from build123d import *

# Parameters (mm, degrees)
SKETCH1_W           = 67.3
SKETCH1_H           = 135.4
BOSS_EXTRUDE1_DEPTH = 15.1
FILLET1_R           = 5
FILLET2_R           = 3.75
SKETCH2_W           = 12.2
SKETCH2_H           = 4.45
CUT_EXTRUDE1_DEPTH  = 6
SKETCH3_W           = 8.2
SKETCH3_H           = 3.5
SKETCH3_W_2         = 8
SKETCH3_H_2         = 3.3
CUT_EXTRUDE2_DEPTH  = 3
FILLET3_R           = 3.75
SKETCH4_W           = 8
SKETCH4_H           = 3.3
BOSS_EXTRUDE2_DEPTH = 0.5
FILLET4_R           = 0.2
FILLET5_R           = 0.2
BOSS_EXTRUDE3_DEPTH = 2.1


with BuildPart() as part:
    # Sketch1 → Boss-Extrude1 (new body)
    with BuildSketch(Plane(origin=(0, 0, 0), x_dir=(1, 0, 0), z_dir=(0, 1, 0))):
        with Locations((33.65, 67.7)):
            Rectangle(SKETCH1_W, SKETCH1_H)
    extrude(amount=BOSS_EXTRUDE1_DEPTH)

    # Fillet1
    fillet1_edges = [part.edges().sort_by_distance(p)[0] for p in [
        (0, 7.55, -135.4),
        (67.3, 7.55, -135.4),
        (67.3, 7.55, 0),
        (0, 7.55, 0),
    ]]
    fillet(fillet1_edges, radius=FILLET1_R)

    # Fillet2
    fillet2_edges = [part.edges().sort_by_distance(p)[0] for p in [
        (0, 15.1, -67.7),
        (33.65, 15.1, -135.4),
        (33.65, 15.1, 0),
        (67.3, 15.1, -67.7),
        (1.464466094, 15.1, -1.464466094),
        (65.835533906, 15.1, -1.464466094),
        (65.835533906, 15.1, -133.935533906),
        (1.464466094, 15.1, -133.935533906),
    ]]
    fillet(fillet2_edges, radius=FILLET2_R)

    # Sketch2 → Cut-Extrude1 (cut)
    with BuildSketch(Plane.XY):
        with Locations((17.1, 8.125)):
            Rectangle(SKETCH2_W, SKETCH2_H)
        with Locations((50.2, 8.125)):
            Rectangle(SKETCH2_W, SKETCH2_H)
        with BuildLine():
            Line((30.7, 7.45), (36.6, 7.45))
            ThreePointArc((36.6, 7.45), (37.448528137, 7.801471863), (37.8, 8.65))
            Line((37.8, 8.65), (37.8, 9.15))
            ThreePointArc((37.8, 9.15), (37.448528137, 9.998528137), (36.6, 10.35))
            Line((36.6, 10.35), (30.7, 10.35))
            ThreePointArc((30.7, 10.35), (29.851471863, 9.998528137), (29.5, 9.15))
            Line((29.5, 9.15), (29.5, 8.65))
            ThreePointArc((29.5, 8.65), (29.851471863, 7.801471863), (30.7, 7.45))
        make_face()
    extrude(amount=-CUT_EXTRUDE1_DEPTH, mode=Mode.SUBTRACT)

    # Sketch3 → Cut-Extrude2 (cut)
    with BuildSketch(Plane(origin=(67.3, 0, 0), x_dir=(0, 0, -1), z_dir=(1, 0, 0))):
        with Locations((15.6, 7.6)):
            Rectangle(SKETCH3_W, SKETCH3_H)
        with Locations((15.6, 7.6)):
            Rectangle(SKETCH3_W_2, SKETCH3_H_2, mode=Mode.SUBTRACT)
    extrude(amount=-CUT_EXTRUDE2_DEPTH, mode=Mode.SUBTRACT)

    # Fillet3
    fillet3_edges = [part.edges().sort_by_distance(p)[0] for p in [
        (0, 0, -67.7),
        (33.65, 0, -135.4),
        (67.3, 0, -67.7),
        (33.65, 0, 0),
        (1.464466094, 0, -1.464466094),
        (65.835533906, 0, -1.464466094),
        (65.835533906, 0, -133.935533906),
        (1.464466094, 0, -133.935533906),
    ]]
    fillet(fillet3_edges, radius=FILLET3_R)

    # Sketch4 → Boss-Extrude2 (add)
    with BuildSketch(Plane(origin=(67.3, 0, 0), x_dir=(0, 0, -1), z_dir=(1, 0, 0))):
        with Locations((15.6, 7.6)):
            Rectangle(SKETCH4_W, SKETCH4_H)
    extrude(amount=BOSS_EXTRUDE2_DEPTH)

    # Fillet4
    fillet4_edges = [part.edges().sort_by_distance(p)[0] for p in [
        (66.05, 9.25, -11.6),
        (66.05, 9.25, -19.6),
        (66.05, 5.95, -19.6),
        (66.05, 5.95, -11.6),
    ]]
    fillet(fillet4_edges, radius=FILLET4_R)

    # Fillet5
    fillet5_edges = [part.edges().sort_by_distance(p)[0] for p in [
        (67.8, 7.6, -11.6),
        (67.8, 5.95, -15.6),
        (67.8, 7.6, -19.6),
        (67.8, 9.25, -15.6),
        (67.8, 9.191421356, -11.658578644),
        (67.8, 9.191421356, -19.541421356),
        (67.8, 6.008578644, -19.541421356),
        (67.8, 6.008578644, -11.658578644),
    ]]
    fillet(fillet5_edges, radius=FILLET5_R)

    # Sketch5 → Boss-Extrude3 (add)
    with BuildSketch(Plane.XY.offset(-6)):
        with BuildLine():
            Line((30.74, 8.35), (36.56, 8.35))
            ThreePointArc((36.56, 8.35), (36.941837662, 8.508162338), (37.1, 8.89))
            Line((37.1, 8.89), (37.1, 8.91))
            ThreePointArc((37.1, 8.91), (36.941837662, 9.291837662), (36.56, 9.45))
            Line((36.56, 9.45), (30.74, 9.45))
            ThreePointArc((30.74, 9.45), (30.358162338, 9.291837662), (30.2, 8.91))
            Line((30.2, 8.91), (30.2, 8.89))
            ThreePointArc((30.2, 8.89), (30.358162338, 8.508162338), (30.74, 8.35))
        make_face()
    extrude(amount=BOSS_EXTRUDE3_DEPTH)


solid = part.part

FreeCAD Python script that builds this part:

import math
import FreeCAD as App
import Part
import Sketcher

V = App.Vector
Q = App.Units.Quantity


def edges_at(feature, points):
    """Names of the edges that pass closest to the given points."""
    edges = feature.Shape.Edges
    near = lambda p: min(range(len(edges)), key=lambda i: edges[i].distToShape(Part.Vertex(*p))[0])
    return sorted({f"Edge{near(p) + 1}" for p in points})


def add_polygon(sketch, points):
    """Adds a closed chain of lines whose ends are joined by coincident constraints."""
    first, n = sketch.GeometryCount, len(points)
    for a, b in zip(points, points[1:] + points[:1]):
        sketch.addGeometry(Part.LineSegment(App.Vector(*a, 0), App.Vector(*b, 0)), False)
    for i in range(n):
        sketch.addConstraint(Sketcher.Constraint("Coincident", first + i, 2, first + (i + 1) % n, 1))

doc = App.newDocument("Part")
body = doc.addObject("PartDesign::Body", "Body")

# Sketch on XZ plane
sketch1 = doc.addObject("Sketcher::SketchObject", "Sketch")
body.addObject(sketch1)
sketch1.AttachmentSupport = (doc.XZ_Plane, [""])
sketch1.MapMode = "FlatFace"
add_polygon(sketch1, [(0, -135), (0, 0), (67, 0), (67, -135)])  # lines 0-3
sketch1.addConstraint(Sketcher.Constraint("Vertical", 0))
sketch1.addConstraint(Sketcher.Constraint("Horizontal", 1))
sketch1.addConstraint(Sketcher.Constraint("Vertical", 2))
sketch1.addConstraint(Sketcher.Constraint("Horizontal", 3))
sketch1.addConstraint(Sketcher.Constraint("Coincident", 0, 2, -1, 1))
sketch1.addConstraint(Sketcher.Constraint("DistanceX", 1, 1, 1, 2, Q("67.3 mm")))
sketch1.addConstraint(Sketcher.Constraint("DistanceY", 0, 1, 0, 2, Q("135.4 mm")))
pad1 = doc.addObject("PartDesign::Pad", "Pad")
body.addObject(pad1)
pad1.Profile = sketch1
pad1.Length = 15.1
pad1.Reversed = True
doc.recompute()

fillet = doc.addObject("PartDesign::Fillet", "Fillet")
body.addObject(fillet)
fillet.Base = (pad1, edges_at(pad1, [
    (0, 7.55, -135.4),
    (67.3, 7.55, -135.4),
    (67.3, 7.55, 0),
    (0, 7.55, 0),
]))
fillet.Radius = 5
doc.recompute()

fillet2 = doc.addObject("PartDesign::Fillet", "Fillet001")
body.addObject(fillet2)
fillet2.Base = (fillet, edges_at(fillet, [
    (0, 15.1, -67.7),
    (33.65, 15.1, -135.4),
    (33.65, 15.1, 0),
    (67.3, 15.1, -67.7),
    (1.464, 15.1, -1.464),
    (65.836, 15.1, -1.464),
    (65.836, 15.1, -133.936),
    (1.464, 15.1, -133.936),
]))
fillet2.Radius = 3.75

# Sketch on XY plane
sketch2 = doc.addObject("Sketcher::SketchObject", "Sketch001")
body.addObject(sketch2)
sketch2.AttachmentSupport = (doc.XY_Plane, [""])
sketch2.MapMode = "FlatFace"
add_polygon(sketch2, [(11, 10.3), (11, 5.9), (23.2, 5.9), (23.2, 10.3)])  # lines 0-3
add_polygon(sketch2, [(44.1, 10.3), (44.1, 5.9), (56.3, 5.9), (56.3, 10.3)])  # lines 4-7
sketch2.addGeometry(Part.LineSegment(V(30.7, 7.5, 0), V(36.6, 7.5, 0)), False)  # 8
sketch2.addGeometry(Part.ArcOfCircle(Part.Circle(V(36.6, 8.7, 0), V(0, 0, 1), 1.2), math.radians(-90), math.radians(0)), False)  # 9
sketch2.addGeometry(Part.LineSegment(V(37.8, 8.7, 0), V(37.8, 9.2, 0)), False)  # 10
sketch2.addGeometry(Part.ArcOfCircle(Part.Circle(V(36.6, 9.1, 0), V(0, 0, 1), 1.2), math.radians(0), math.radians(90)), False)  # 11
sketch2.addGeometry(Part.LineSegment(V(36.6, 10.3, 0), V(30.7, 10.3, 0)), False)  # 12
sketch2.addGeometry(Part.ArcOfCircle(Part.Circle(V(30.7, 9.1, 0), V(0, 0, 1), 1.2), math.radians(90), math.radians(180)), False)  # 13
sketch2.addGeometry(Part.LineSegment(V(29.5, 9.2, 0), V(29.5, 8.7, 0)), False)  # 14
sketch2.addGeometry(Part.ArcOfCircle(Part.Circle(V(30.7, 8.7, 0), V(0, 0, 1), 1.2), math.radians(-180), math.radians(-90)), False)  # 15
sketch2.addConstraint(Sketcher.Constraint("Tangent", 8, 2, 9, 1))
sketch2.addConstraint(Sketcher.Constraint("Tangent", 9, 2, 10, 1))
sketch2.addConstraint(Sketcher.Constraint("Tangent", 10, 2, 11, 1))
sketch2.addConstraint(Sketcher.Constraint("Tangent", 11, 2, 12, 1))
sketch2.addConstraint(Sketcher.Constraint("Tangent", 12, 2, 13, 1))
sketch2.addConstraint(Sketcher.Constraint("Tangent", 13, 2, 14, 1))
sketch2.addConstraint(Sketcher.Constraint("Tangent", 14, 2, 15, 1))
sketch2.addConstraint(Sketcher.Constraint("Tangent", 15, 2, 8, 1))
sketch2.addConstraint(Sketcher.Constraint("Vertical", 0))
sketch2.addConstraint(Sketcher.Constraint("Horizontal", 1))
sketch2.addConstraint(Sketcher.Constraint("Vertical", 2))
sketch2.addConstraint(Sketcher.Constraint("Horizontal", 3))
sketch2.addConstraint(Sketcher.Constraint("Vertical", 4))
sketch2.addConstraint(Sketcher.Constraint("Horizontal", 5))
sketch2.addConstraint(Sketcher.Constraint("Vertical", 6))
sketch2.addConstraint(Sketcher.Constraint("Horizontal", 7))
sketch2.addConstraint(Sketcher.Constraint("Horizontal", 8))
sketch2.addConstraint(Sketcher.Constraint("Vertical", 10))
sketch2.addConstraint(Sketcher.Constraint("Horizontal", 12))
sketch2.addConstraint(Sketcher.Constraint("Vertical", 14))
sketch2.addConstraint(Sketcher.Constraint("Equal", 9, 11))
sketch2.addConstraint(Sketcher.Constraint("Equal", 11, 13))
sketch2.addConstraint(Sketcher.Constraint("Equal", 13, 15))
sketch2.addConstraint(Sketcher.Constraint("Horizontal", 1, 2, 4, 2))
sketch2.addConstraint(Sketcher.Constraint("Horizontal", 3, 2, 6, 2))
sketch2.addConstraint(Sketcher.Constraint("Horizontal", 7, 2, 11, 2))
sketch2.addConstraint(Sketcher.Constraint("Equal", 3, 5))
sketch2.addConstraint(Sketcher.Constraint("Radius", 9, Q("1.2 mm")))
sketch2.addConstraint(Sketcher.Constraint("DistanceX", 1, 1, 1, 2, Q("12.2 mm")))
sketch2.addConstraint(Sketcher.Constraint("DistanceX", 8, 1, 8, 2, Q("5.9 mm")))
sketch2.addConstraint(Sketcher.Constraint("DistanceY", 10, 1, 10, 2, Q("0.5 mm")))
sketch2.addConstraint(Sketcher.Constraint("DistanceX", -1, 1, 0, 2, Q("11 mm")))
sketch2.addConstraint(Sketcher.Constraint("DistanceY", 0, 2, 0, 1, Q("4.45 mm")))
sketch2.addConstraint(Sketcher.Constraint("DistanceX", -1, 1, 9, 3, Q("36.6 mm")))
sketch2.addConstraint(Sketcher.Constraint("DistanceY", -1, 1, 0, 2, Q("5.9 mm")))
sketch2.addConstraint(Sketcher.Constraint("DistanceX", -1, 1, 4, 2, Q("44.1 mm")))
pocket1 = doc.addObject("PartDesign::Pocket", "Pocket")
body.addObject(pocket1)
pocket1.Profile = sketch2
pocket1.Length = 6

# Sketch on YZ plane
sketch3 = doc.addObject("Sketcher::SketchObject", "Sketch002")
body.addObject(sketch3)
sketch3.AttachmentSupport = (doc.YZ_Plane, [""])
sketch3.MapMode = "FlatFace"
sketch3.AttachmentOffset = App.Placement(V(0, 0, 67.3), App.Rotation())
add_polygon(sketch3, [(9.3, -11.5), (5.8, -11.5), (5.8, -19.7), (9.3, -19.7)])  # lines 0-3
add_polygon(sketch3, [(6, -19.6), (6, -11.6), (9.2, -11.6), (9.2, -19.6)])  # lines 4-7
sketch3.addConstraint(Sketcher.Constraint("Horizontal", 0))
sketch3.addConstraint(Sketcher.Constraint("Vertical", 1))
sketch3.addConstraint(Sketcher.Constraint("Horizontal", 2))
sketch3.addConstraint(Sketcher.Constraint("Vertical", 3))
sketch3.addConstraint(Sketcher.Constraint("Vertical", 4))
sketch3.addConstraint(Sketcher.Constraint("Horizontal", 5))
sketch3.addConstraint(Sketcher.Constraint("Vertical", 6))
sketch3.addConstraint(Sketcher.Constraint("Horizontal", 7))
sketch3.addConstraint(Sketcher.Constraint("DistanceY", 4, 1, 4, 2, Q("8 mm")))
sketch3.addConstraint(Sketcher.Constraint("DistanceX", 0, 2, 0, 1, Q("3.5 mm")))
sketch3.addConstraint(Sketcher.Constraint("DistanceX", 5, 1, 5, 2, Q("3.3 mm")))
sketch3.addConstraint(Sketcher.Constraint("DistanceY", 1, 2, 1, 1, Q("8.2 mm")))
sketch3.addConstraint(Sketcher.Constraint("DistanceY", 0, 2, -1, 1, Q("11.5 mm")))
sketch3.addConstraint(Sketcher.Constraint("DistanceY", 4, 2, -1, 1, Q("11.6 mm")))
sketch3.addConstraint(Sketcher.Constraint("DistanceX", 0, 2, 4, 2, Q("0.1 mm")))
sketch3.addConstraint(Sketcher.Constraint("DistanceX", -1, 1, 0, 2, Q("5.85 mm")))
pocket2 = doc.addObject("PartDesign::Pocket", "Pocket001")
body.addObject(pocket2)
pocket2.Profile = sketch3
pocket2.Length = 3
doc.recompute()

fillet3 = doc.addObject("PartDesign::Fillet", "Fillet002")
body.addObject(fillet3)
fillet3.Base = (pocket2, edges_at(pocket2, [
    (0, 0, -67.7),
    (33.65, 0, -135.4),
    (67.3, 0, -67.7),
    (33.65, 0, 0),
    (1.464, 0, -1.464),
    (65.836, 0, -1.464),
    (65.836, 0, -133.936),
    (1.464, 0, -133.936),
]))
fillet3.Radius = 3.75

# Sketch on YZ plane
sketch4 = doc.addObject("Sketcher::SketchObject", "Sketch003")
body.addObject(sketch4)
sketch4.AttachmentSupport = (doc.YZ_Plane, [""])
sketch4.MapMode = "FlatFace"
sketch4.AttachmentOffset = App.Placement(V(0, 0, 67.3), App.Rotation())
add_polygon(sketch4, [(9.2, -11.6), (6, -11.6), (6, -19.6), (9.2, -19.6)])  # lines 0-3
sketch4.addConstraint(Sketcher.Constraint("Horizontal", 0))
sketch4.addConstraint(Sketcher.Constraint("Vertical", 1))
sketch4.addConstraint(Sketcher.Constraint("Horizontal", 2))
sketch4.addConstraint(Sketcher.Constraint("Vertical", 3))
sketch4.addConstraint(Sketcher.Constraint("DistanceY", 1, 2, 1, 1, Q("8 mm")))
sketch4.addConstraint(Sketcher.Constraint("DistanceX", 0, 2, 0, 1, Q("3.3 mm")))
sketch4.addConstraint(Sketcher.Constraint("DistanceY", 0, 2, -1, 1, Q("11.6 mm")))
sketch4.addConstraint(Sketcher.Constraint("DistanceX", -1, 1, 0, 2, Q("5.95 mm")))
pad2 = doc.addObject("PartDesign::Pad", "Pad001")
body.addObject(pad2)
pad2.Profile = sketch4
pad2.Length = 0.5
doc.recompute()

fillet4 = doc.addObject("PartDesign::Fillet", "Fillet003")
body.addObject(fillet4)
fillet4.Base = (pad2, edges_at(pad2, [
    (66.05, 9.25, -11.6),
    (66.05, 9.25, -19.6),
    (66.05, 5.95, -19.6),
    (66.05, 5.95, -11.6),
]))
fillet4.Radius = 0.2
doc.recompute()

fillet5 = doc.addObject("PartDesign::Fillet", "Fillet004")
body.addObject(fillet5)
fillet5.Base = (fillet4, edges_at(fillet4, [
    (67.8, 7.6, -11.6),
    (67.8, 5.95, -15.6),
    (67.8, 7.6, -19.6),
    (67.8, 9.25, -15.6),
    (67.8, 9.191, -11.659),
    (67.8, 9.191, -19.541),
    (67.8, 6.009, -19.541),
    (67.8, 6.009, -11.659),
]))
fillet5.Radius = 0.2

# Sketch on XY plane
sketch5 = doc.addObject("Sketcher::SketchObject", "Sketch004")
body.addObject(sketch5)
sketch5.AttachmentSupport = (doc.XY_Plane, [""])
sketch5.MapMode = "FlatFace"
sketch5.AttachmentOffset = App.Placement(V(0, 0, -6), App.Rotation())
sketch5.addGeometry(Part.LineSegment(V(30.74, 8.35, 0), V(36.56, 8.35, 0)), False)
sketch5.addGeometry(Part.ArcOfCircle(Part.Circle(V(36.56, 8.89, 0), V(0, 0, 1), 0.54), math.radians(-90), math.radians(0)), False)
sketch5.addGeometry(Part.LineSegment(V(37.1, 8.89, 0), V(37.1, 8.91, 0)), False)
sketch5.addGeometry(Part.ArcOfCircle(Part.Circle(V(36.56, 8.91, 0), V(0, 0, 1), 0.54), math.radians(0), math.radians(90)), False)
sketch5.addGeometry(Part.LineSegment(V(36.56, 9.45, 0), V(30.74, 9.45, 0)), False)
sketch5.addGeometry(Part.ArcOfCircle(Part.Circle(V(30.74, 8.91, 0), V(0, 0, 1), 0.54), math.radians(90), math.radians(180)), False)
sketch5.addGeometry(Part.LineSegment(V(30.2, 8.91, 0), V(30.2, 8.89, 0)), False)
sketch5.addGeometry(Part.ArcOfCircle(Part.Circle(V(30.74, 8.89, 0), V(0, 0, 1), 0.54), math.radians(180), math.radians(270)), False)
sketch5.addConstraint(Sketcher.Constraint("Tangent", 0, 2, 1, 1))
sketch5.addConstraint(Sketcher.Constraint("Tangent", 1, 2, 2, 1))
sketch5.addConstraint(Sketcher.Constraint("Tangent", 2, 2, 3, 1))
sketch5.addConstraint(Sketcher.Constraint("Tangent", 3, 2, 4, 1))
sketch5.addConstraint(Sketcher.Constraint("Tangent", 4, 2, 5, 1))
sketch5.addConstraint(Sketcher.Constraint("Tangent", 5, 2, 6, 1))
sketch5.addConstraint(Sketcher.Constraint("Tangent", 6, 2, 7, 1))
sketch5.addConstraint(Sketcher.Constraint("Tangent", 7, 2, 0, 1))
sketch5.addConstraint(Sketcher.Constraint("Horizontal", 0))
sketch5.addConstraint(Sketcher.Constraint("Vertical", 2))
sketch5.addConstraint(Sketcher.Constraint("Horizontal", 4))
sketch5.addConstraint(Sketcher.Constraint("Vertical", 6))
sketch5.addConstraint(Sketcher.Constraint("Equal", 1, 3))
sketch5.addConstraint(Sketcher.Constraint("Equal", 3, 5))
sketch5.addConstraint(Sketcher.Constraint("Equal", 5, 7))
sketch5.addConstraint(Sketcher.Constraint("Radius", 1, Q("0.54 mm")))
sketch5.addConstraint(Sketcher.Constraint("DistanceX", 0, 1, 0, 2, Q("5.82 mm")))
sketch5.addConstraint(Sketcher.Constraint("DistanceY", 2, 1, 2, 2, Q("0.02 mm")))
sketch5.addConstraint(Sketcher.Constraint("DistanceX", -1, 1, 1, 2, Q("37.1 mm")))
sketch5.addConstraint(Sketcher.Constraint("DistanceY", -1, 1, 1, 3, Q("8.89 mm")))
pad3 = doc.addObject("PartDesign::Pad", "Pad002")
body.addObject(pad3)
pad3.Profile = sketch5
pad3.Length = 2.1

doc.recompute()
